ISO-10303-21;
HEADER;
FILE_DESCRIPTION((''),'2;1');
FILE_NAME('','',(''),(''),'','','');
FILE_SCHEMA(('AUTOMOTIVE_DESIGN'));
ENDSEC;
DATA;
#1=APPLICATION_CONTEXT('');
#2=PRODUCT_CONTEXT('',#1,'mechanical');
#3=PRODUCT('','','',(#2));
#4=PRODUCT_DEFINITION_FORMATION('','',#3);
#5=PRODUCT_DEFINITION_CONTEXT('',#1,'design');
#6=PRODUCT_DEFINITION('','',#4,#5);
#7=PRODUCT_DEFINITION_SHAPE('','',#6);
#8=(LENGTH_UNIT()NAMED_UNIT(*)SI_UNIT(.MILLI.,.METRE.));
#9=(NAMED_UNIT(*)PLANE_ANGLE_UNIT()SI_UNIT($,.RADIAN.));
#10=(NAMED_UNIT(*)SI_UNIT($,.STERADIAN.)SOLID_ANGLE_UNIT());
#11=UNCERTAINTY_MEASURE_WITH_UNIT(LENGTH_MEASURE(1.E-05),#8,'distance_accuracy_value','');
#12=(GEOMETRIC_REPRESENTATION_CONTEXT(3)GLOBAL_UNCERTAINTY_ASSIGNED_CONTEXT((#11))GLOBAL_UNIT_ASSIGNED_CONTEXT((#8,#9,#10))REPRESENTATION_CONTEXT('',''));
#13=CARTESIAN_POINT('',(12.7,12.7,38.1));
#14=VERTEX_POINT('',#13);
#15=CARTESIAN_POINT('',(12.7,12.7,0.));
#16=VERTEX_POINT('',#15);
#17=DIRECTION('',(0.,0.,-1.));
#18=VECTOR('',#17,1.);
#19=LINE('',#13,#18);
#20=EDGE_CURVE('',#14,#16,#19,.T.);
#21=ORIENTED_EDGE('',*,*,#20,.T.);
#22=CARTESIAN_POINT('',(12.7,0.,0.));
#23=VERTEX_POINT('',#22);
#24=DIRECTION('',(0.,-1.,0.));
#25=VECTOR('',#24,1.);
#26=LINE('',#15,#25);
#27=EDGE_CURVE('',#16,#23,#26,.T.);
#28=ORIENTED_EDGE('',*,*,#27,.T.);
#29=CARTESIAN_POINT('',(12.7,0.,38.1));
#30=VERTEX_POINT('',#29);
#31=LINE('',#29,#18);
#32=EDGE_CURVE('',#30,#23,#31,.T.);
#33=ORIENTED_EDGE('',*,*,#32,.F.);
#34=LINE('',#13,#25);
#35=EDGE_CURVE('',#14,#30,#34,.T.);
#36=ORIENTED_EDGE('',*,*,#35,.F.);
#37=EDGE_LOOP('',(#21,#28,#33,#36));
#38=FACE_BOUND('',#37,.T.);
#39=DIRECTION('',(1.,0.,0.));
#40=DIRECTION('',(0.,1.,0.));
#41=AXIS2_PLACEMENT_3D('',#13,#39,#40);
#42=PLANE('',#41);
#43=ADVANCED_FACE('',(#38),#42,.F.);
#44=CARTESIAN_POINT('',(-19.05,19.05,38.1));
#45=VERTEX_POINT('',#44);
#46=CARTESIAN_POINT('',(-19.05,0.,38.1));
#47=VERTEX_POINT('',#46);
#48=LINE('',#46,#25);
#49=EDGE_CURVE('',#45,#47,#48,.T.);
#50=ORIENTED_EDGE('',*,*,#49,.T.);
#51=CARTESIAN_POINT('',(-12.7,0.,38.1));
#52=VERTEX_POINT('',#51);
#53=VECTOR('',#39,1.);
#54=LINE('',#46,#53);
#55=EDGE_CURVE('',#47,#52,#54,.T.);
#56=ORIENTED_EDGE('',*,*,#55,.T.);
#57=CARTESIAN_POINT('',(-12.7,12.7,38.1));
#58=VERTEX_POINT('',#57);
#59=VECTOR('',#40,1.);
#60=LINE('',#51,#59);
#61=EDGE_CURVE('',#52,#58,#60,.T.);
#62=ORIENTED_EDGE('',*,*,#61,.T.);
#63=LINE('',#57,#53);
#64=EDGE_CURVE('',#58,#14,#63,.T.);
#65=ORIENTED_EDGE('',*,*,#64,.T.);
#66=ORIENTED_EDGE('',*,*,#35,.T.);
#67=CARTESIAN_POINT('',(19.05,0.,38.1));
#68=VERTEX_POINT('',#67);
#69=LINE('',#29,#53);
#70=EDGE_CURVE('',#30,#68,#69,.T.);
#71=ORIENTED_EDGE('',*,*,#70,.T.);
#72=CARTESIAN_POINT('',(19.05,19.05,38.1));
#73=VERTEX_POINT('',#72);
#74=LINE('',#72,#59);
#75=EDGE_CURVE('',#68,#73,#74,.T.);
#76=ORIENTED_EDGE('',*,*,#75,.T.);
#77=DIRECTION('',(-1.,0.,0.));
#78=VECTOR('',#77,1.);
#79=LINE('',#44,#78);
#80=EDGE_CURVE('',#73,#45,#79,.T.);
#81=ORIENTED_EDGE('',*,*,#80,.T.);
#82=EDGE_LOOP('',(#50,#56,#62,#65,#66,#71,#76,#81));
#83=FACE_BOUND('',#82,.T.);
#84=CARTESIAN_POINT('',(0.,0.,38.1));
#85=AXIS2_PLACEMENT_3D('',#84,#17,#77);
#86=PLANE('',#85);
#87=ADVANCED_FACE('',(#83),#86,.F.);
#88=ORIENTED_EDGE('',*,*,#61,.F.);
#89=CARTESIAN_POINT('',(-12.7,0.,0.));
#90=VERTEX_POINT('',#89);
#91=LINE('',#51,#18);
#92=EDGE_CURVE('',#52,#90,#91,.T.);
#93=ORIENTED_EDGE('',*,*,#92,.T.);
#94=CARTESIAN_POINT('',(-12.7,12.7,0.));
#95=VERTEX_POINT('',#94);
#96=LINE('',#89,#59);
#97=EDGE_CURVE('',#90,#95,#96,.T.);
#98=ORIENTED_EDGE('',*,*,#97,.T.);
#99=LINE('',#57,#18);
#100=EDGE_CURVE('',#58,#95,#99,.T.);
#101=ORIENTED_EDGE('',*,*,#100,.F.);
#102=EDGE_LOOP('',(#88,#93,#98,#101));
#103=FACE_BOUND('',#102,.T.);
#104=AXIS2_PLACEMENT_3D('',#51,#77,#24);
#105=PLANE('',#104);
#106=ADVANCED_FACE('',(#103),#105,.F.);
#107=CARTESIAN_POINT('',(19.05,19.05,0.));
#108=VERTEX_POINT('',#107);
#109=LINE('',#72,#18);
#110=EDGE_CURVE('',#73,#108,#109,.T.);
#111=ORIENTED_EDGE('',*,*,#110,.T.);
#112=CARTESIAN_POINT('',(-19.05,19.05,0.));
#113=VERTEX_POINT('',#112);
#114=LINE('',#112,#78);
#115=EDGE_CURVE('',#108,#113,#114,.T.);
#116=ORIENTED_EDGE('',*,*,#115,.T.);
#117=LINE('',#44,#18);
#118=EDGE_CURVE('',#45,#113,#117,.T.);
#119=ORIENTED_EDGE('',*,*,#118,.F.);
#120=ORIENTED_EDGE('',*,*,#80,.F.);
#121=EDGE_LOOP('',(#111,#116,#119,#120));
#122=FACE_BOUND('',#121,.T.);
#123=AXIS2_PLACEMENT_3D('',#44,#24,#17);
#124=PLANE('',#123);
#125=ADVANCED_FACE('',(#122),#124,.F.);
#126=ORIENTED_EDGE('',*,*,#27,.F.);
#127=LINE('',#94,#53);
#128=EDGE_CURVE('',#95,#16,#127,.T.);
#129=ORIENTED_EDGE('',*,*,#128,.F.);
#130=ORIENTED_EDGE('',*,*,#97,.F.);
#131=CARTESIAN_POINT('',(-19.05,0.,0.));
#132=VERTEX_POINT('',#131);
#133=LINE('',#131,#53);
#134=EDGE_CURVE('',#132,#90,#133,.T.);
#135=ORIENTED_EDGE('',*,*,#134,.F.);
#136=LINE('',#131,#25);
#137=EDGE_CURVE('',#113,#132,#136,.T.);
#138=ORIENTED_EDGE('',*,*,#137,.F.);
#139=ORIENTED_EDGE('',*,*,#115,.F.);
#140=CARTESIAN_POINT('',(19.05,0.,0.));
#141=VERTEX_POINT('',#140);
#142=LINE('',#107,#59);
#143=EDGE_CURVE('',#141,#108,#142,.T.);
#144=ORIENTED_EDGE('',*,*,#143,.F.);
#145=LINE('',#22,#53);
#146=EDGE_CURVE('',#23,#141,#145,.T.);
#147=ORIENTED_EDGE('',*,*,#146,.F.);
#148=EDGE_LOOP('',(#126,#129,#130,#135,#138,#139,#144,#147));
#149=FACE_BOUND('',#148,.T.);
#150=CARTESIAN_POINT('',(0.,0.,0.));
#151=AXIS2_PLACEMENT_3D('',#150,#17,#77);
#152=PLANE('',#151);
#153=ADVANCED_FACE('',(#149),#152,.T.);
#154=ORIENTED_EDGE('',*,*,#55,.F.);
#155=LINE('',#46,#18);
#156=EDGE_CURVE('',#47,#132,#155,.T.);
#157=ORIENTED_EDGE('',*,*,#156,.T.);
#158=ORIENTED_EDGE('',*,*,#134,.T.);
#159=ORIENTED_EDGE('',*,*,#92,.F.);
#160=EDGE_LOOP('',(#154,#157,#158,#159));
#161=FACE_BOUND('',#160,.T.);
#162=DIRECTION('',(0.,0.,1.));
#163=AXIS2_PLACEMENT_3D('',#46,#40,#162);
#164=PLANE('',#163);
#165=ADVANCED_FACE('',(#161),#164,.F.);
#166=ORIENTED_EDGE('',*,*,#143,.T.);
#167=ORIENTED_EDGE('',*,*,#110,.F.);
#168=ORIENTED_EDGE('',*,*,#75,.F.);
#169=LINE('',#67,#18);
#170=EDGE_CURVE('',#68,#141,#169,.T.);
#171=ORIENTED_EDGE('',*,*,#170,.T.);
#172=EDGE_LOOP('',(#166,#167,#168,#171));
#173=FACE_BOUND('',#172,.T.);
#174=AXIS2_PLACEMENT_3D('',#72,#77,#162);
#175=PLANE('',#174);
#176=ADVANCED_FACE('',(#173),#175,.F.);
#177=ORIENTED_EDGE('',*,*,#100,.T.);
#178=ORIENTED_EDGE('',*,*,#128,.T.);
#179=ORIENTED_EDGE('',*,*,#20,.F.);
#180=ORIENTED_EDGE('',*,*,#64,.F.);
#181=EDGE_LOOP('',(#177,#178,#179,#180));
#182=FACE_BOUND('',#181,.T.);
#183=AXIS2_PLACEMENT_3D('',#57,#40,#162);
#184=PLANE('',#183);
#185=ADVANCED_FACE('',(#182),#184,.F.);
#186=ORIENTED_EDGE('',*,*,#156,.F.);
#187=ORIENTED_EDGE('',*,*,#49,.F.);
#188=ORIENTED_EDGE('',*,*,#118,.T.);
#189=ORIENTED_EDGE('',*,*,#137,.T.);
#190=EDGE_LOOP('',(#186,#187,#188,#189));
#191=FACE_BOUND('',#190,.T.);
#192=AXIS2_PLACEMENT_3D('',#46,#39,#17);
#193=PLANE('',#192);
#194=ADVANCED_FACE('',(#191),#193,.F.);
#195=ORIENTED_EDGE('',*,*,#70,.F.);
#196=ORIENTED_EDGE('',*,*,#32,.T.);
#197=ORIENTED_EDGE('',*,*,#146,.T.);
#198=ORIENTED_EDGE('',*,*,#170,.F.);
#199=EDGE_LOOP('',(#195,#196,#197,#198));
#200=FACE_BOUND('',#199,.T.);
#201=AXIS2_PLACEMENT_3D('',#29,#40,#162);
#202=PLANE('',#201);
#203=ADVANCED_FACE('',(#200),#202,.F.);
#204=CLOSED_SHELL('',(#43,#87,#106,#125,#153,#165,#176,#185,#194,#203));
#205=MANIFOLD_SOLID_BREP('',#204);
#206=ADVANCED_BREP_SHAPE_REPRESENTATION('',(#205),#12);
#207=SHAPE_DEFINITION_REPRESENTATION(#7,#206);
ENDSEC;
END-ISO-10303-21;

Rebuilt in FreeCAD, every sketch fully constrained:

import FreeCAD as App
import Part
import Sketcher
Q = App.Units.Quantity

doc = App.newDocument("Part")
body = doc.addObject("PartDesign::Body", "Body")

# Sketch on XY plane
sketch1 = body.newObject("Sketcher::SketchObject", "Sketch")
sketch1.AttachmentSupport = (doc.getObject("XY_Plane"), [""])
sketch1.MapMode = "FlatFace"
sketch1.addGeometry([
    Part.LineSegment(App.Vector(-13, 0, 0), App.Vector(-13, 13, 0)),  # 0
    Part.LineSegment(App.Vector(-13, 13, 0), App.Vector(13, 13, 0)),  # 1
    Part.LineSegment(App.Vector(13, 13, 0), App.Vector(13, 0, 0)),  # 2
    Part.LineSegment(App.Vector(13, 0, 0), App.Vector(19, 0, 0)),  # 3
    Part.LineSegment(App.Vector(19, 0, 0), App.Vector(19, 19, 0)),  # 4
    Part.LineSegment(App.Vector(19, 19, 0), App.Vector(-19, 19, 0)),  # 5
    Part.LineSegment(App.Vector(-19, 19, 0), App.Vector(-19, 0, 0)),  # 6
    Part.LineSegment(App.Vector(-19, 0, 0), App.Vector(-13, 0, 0)),  # 7
], False)
sketch1.addConstraint([
    Sketcher.Constraint("Coincident", 0, 2, 1, 1),
    Sketcher.Constraint("Coincident", 1, 2, 2, 1),
    Sketcher.Constraint("Coincident", 2, 2, 3, 1),
    Sketcher.Constraint("Coincident", 3, 2, 4, 1),
    Sketcher.Constraint("Coincident", 4, 2, 5, 1),
    Sketcher.Constraint("Coincident", 5, 2, 6, 1),
    Sketcher.Constraint("Coincident", 6, 2, 7, 1),
    Sketcher.Constraint("Coincident", 7, 2, 0, 1),
    Sketcher.Constraint("Vertical", 0),
    Sketcher.Constraint("Horizontal", 1),
    Sketcher.Constraint("Vertical", 2),
    Sketcher.Constraint("Horizontal", 3),
    Sketcher.Constraint("Vertical", 4),
    Sketcher.Constraint("Horizontal", 5),
    Sketcher.Constraint("Vertical", 6),
    Sketcher.Constraint("Horizontal", 7),
    Sketcher.Constraint("Symmetric", 3, 2, 6, 2, -1, 1),
    Sketcher.Constraint("Symmetric", 2, 2, 7, 2, -2),
    Sketcher.Constraint("DistanceX", 1, 1, 1, 2, Q("1 in")),
    Sketcher.Constraint("DistanceX", 5, 2, 5, 1, Q("1.5 in")),
    Sketcher.Constraint("DistanceY", 0, 1, 0, 2, Q("0.5 in")),
    Sketcher.Constraint("DistanceY", 4, 1, 4, 2, Q("0.75 in")),
])
pad1 = body.newObject("PartDesign::Pad", "Pad")
pad1.Profile = sketch1
pad1.Length = Q("1.5 in")

doc.recompute()
